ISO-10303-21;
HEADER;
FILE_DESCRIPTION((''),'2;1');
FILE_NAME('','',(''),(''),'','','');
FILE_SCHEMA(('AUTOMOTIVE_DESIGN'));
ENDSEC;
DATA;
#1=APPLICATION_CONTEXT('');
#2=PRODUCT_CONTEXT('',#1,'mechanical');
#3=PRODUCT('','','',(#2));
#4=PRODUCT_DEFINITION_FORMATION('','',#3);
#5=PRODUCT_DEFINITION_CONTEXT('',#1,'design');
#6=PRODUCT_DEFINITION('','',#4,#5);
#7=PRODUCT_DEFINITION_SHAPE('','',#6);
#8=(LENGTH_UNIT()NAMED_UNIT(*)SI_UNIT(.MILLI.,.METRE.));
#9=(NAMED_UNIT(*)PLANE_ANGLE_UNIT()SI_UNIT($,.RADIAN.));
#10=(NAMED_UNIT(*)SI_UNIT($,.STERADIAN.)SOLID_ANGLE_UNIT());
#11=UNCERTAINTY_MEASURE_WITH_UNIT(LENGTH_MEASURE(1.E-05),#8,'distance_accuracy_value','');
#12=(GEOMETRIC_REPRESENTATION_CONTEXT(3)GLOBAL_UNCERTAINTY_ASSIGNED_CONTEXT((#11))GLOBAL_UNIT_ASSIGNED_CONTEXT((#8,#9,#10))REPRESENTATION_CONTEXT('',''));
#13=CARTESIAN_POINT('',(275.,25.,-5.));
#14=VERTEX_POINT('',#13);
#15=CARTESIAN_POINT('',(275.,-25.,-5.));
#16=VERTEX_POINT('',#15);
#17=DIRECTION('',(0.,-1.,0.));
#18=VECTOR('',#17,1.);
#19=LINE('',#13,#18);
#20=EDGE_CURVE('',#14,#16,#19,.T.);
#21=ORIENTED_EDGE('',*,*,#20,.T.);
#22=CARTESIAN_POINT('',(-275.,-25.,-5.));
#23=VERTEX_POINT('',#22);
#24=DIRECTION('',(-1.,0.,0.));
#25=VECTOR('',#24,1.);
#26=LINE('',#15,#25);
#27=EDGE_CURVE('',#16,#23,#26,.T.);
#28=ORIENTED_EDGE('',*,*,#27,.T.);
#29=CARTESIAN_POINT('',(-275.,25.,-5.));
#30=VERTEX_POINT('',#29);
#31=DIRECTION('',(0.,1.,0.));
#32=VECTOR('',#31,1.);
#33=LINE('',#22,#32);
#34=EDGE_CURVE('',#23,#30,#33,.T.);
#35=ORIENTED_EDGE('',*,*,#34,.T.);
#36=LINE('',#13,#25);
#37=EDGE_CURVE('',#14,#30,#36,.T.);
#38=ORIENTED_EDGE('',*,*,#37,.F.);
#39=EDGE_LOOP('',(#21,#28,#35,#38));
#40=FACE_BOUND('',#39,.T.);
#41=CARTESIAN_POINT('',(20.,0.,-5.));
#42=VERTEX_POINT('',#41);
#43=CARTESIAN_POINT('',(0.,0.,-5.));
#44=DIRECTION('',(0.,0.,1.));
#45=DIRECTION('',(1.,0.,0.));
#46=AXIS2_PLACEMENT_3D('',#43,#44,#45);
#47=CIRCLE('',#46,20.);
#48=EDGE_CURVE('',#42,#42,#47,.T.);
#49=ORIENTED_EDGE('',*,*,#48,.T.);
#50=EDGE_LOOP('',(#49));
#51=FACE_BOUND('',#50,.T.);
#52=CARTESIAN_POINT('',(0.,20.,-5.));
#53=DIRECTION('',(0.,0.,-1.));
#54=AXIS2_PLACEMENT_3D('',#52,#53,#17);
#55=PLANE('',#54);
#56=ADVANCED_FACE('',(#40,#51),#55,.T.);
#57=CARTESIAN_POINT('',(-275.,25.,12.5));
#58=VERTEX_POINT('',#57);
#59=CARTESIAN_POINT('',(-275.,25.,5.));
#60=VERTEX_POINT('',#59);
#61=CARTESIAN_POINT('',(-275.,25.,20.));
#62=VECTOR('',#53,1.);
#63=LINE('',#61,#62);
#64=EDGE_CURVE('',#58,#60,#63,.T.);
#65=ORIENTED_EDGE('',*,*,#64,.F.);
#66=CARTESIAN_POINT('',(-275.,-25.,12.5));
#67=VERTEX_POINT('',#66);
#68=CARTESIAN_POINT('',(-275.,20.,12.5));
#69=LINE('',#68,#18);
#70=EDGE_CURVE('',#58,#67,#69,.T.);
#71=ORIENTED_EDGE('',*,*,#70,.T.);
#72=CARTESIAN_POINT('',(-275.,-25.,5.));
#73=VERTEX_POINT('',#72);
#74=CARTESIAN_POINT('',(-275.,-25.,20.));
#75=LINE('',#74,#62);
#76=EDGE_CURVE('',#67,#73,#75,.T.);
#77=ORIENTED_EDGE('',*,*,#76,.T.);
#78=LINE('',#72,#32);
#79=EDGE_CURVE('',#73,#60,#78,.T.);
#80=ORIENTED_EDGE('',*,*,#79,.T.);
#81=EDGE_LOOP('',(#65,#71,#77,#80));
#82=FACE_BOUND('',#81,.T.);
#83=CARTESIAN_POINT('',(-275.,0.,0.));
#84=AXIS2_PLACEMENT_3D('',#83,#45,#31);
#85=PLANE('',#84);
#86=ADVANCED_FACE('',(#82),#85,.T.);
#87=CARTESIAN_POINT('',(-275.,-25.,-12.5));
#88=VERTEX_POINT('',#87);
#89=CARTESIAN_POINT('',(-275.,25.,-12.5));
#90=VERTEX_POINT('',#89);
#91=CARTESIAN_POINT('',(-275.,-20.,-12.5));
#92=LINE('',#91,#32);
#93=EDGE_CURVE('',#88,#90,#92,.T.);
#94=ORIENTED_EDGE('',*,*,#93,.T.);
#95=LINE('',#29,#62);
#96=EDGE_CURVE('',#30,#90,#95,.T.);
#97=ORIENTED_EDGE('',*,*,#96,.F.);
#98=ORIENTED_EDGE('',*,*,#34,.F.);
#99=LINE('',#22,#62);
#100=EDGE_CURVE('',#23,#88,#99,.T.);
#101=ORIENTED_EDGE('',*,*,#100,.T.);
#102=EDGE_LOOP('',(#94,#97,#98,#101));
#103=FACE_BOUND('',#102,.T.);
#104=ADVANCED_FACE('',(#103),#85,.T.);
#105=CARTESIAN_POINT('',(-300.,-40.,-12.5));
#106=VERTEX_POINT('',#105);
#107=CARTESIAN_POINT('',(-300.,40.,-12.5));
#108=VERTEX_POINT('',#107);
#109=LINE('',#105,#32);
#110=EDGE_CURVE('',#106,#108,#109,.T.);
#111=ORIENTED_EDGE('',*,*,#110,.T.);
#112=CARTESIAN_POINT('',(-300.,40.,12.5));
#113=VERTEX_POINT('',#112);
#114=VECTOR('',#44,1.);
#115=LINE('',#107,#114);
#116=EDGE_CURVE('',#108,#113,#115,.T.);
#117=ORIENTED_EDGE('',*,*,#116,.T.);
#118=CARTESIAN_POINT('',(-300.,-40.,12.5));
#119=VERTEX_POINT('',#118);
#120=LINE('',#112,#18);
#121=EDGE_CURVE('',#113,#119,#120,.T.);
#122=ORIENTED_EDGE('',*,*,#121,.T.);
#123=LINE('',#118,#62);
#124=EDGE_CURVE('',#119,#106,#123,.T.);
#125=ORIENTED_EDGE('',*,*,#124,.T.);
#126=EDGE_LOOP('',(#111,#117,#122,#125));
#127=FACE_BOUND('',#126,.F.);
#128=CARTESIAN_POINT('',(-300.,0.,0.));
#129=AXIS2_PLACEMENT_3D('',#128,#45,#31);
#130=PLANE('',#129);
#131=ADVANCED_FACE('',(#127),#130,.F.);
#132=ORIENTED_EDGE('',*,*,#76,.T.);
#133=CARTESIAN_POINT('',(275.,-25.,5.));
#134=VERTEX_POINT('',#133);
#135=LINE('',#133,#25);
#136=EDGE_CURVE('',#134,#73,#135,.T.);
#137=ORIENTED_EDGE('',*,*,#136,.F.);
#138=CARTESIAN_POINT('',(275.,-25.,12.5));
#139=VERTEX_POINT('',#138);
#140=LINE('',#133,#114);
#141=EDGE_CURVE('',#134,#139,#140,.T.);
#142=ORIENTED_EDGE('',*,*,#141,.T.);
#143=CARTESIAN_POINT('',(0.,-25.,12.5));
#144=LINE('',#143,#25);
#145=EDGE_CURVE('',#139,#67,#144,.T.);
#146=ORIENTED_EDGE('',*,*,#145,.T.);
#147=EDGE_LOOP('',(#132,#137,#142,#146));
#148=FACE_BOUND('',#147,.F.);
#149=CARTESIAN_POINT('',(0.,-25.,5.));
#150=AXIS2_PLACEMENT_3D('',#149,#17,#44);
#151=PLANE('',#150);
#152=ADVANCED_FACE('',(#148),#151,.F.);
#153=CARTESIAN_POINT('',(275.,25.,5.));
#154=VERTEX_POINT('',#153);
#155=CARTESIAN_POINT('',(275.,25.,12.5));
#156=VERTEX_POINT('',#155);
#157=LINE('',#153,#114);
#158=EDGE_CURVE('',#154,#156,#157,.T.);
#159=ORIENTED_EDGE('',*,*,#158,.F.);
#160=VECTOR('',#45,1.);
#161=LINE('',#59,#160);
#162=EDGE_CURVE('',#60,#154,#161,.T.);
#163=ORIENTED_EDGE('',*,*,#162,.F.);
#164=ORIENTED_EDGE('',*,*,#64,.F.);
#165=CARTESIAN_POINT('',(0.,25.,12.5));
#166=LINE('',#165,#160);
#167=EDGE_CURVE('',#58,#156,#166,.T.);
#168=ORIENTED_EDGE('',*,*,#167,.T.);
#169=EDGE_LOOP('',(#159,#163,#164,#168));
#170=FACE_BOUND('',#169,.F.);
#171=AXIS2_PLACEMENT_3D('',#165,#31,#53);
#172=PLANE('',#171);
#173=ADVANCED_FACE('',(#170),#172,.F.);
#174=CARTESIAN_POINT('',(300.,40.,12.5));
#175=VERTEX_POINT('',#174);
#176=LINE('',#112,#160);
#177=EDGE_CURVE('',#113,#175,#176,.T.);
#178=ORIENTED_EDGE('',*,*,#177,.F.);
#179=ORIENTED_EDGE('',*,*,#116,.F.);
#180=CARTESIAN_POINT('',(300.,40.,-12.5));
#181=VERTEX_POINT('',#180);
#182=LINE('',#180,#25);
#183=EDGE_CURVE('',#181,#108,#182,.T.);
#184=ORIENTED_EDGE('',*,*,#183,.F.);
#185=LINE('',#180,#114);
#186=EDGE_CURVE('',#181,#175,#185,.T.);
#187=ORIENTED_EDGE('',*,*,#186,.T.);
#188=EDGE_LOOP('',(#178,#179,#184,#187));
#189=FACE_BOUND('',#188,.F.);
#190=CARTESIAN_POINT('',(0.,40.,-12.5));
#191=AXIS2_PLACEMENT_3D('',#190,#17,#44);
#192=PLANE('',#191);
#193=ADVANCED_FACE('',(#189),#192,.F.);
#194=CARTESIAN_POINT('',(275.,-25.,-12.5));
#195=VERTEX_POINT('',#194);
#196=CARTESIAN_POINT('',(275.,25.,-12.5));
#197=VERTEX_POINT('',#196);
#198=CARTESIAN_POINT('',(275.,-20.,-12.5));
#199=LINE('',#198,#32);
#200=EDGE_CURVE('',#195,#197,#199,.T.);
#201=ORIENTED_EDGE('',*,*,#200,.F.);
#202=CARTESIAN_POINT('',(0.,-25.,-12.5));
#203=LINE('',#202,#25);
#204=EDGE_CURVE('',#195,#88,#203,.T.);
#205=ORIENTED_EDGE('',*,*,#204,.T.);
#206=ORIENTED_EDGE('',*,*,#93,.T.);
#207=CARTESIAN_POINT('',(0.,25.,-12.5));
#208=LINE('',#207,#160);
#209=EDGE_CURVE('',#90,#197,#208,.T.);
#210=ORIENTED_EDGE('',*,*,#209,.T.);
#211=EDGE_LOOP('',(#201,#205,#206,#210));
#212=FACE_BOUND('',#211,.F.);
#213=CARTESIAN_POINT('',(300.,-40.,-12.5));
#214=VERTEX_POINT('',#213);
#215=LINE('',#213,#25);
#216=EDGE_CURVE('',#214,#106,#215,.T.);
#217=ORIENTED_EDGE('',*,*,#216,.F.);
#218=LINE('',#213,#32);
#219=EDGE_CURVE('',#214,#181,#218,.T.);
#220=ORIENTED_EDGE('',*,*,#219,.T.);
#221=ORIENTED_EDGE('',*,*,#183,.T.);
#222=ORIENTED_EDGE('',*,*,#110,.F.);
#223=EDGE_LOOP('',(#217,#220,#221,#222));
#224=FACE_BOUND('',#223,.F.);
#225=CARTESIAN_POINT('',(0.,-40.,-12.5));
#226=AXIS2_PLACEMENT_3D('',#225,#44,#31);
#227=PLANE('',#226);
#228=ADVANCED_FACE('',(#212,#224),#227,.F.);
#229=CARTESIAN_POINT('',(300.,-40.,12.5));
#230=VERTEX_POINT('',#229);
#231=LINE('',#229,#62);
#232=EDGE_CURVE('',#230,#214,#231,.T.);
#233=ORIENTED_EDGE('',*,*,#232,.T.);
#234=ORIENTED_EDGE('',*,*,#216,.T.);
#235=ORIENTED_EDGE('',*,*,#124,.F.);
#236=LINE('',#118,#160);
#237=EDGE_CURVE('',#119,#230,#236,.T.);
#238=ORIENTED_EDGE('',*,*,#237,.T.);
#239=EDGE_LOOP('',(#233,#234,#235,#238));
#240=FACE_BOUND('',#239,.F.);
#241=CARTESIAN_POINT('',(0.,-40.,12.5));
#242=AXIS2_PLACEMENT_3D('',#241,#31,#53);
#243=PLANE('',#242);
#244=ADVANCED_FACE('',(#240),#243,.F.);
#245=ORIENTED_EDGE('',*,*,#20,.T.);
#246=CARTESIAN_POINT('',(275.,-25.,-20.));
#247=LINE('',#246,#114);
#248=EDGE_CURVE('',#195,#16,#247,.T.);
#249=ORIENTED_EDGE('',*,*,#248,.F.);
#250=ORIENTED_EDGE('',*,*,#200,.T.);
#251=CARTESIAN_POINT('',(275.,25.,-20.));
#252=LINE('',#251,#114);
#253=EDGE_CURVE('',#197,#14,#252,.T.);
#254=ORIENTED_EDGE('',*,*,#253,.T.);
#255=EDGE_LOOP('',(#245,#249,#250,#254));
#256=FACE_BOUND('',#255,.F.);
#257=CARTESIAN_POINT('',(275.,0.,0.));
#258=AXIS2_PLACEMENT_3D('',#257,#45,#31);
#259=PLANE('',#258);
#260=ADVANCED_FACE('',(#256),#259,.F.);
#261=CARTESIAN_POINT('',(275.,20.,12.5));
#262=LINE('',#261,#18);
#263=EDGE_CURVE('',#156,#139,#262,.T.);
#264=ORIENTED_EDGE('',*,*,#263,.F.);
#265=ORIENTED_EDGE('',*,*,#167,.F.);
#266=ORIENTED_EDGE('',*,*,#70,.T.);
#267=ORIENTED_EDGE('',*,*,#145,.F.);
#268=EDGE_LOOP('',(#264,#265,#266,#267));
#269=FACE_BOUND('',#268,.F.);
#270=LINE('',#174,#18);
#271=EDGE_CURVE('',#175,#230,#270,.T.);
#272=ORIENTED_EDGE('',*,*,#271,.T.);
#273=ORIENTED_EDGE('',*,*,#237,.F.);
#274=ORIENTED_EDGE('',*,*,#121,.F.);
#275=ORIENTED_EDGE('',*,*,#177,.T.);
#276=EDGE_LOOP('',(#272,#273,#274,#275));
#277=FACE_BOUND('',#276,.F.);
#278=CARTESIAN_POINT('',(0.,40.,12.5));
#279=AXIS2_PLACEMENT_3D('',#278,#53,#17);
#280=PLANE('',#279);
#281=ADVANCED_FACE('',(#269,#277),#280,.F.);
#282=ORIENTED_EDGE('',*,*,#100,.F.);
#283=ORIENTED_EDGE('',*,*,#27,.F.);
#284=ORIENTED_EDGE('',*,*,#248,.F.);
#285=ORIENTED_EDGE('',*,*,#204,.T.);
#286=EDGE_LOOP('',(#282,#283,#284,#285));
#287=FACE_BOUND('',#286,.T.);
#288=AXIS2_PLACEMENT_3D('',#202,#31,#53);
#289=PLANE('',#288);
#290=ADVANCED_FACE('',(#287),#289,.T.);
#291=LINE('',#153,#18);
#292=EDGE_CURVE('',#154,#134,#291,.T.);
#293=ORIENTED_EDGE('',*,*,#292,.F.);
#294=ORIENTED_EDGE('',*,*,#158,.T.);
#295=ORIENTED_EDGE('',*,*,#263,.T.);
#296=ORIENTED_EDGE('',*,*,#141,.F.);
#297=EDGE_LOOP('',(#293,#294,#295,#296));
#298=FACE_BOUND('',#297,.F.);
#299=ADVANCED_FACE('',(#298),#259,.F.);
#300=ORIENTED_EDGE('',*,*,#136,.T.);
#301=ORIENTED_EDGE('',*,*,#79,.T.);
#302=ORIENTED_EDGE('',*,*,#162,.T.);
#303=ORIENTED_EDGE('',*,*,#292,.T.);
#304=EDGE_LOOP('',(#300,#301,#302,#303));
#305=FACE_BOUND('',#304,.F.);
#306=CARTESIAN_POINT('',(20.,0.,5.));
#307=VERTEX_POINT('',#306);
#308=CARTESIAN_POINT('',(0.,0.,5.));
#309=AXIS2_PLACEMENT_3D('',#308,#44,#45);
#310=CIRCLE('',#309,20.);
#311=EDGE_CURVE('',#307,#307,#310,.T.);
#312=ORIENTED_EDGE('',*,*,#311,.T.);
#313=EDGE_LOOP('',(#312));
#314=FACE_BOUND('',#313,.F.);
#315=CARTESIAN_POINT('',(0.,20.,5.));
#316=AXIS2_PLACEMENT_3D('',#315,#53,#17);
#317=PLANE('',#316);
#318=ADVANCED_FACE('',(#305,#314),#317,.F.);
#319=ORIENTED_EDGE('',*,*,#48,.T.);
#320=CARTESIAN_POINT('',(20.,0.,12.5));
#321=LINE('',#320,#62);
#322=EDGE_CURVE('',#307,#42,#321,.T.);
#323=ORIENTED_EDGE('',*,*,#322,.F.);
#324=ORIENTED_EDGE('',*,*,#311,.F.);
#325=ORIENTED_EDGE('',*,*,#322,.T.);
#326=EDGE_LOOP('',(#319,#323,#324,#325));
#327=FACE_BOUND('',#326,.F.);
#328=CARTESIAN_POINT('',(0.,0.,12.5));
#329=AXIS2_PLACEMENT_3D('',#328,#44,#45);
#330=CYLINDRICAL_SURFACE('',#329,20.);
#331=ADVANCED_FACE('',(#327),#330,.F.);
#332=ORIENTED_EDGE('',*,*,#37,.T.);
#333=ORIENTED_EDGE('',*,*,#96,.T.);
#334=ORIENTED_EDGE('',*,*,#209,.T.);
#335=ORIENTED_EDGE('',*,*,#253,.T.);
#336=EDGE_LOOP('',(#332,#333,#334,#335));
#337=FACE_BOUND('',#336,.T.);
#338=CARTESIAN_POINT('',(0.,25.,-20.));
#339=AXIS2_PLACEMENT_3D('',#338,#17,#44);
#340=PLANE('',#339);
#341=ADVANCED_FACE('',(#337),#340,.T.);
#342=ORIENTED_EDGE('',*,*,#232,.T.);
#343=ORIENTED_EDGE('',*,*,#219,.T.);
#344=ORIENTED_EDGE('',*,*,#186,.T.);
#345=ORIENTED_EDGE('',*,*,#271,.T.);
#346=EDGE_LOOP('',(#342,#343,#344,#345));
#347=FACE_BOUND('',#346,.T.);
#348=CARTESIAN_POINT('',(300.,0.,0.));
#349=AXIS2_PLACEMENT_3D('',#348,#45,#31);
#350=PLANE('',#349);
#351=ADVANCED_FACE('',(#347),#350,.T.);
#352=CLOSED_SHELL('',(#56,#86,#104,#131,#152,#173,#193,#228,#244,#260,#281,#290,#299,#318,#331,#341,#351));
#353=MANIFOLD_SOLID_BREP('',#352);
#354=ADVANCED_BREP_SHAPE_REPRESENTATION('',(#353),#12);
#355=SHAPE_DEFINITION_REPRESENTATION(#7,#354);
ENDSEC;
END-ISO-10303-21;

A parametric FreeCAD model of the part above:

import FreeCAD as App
import Part
import Sketcher
from FreeCAD import Vector
Q = App.Units.Quantity

doc = App.newDocument("Part")
params = doc.addObject("Spreadsheet::Sheet", "Params")
for row, (alias, value) in enumerate([
    ("sketch1_width", "80 mm"),
    ("sketch1_height", "25 mm"),
    ("pad1_length", "600 mm"),
    ("sketch2_diameter", "40 mm"),
    ("sketch3_width", "50 mm"),
    ("sketch3_height", "15 mm"),
    ("pocket2_length", "550 mm"),
], start=1):
    params.set(f"A{row}", alias)
    params.set(f"B{row}", "=" + value)
    params.setAlias(f"B{row}", alias)

body = doc.addObject("PartDesign::Body", "Body")

# Sketch on YZ plane
sketch1 = doc.addObject("Sketcher::SketchObject", "Sketch")
body.addObject(sketch1)
sketch1.AttachmentSupport = (doc.YZ_Plane, [""])
sketch1.MapMode = "FlatFace"
sketch1.addGeometry([
    Part.LineSegment(Vector(40, -12, 0), Vector(40, 12, 0)),
    Part.LineSegment(Vector(40, 12, 0), Vector(-40, 12, 0)),
    Part.LineSegment(Vector(-40, 12, 0), Vector(-40, -12, 0)),
    Part.LineSegment(Vector(-40, -12, 0), Vector(40, -12, 0)),
], False)
sketch1.addConstraint([
    Sketcher.Constraint("Coincident", 0, 2, 1, 1),
    Sketcher.Constraint("Coincident", 1, 2, 2, 1),
    Sketcher.Constraint("Coincident", 2, 2, 3, 1),
    Sketcher.Constraint("Coincident", 3, 2, 0, 1),
    Sketcher.Constraint("Vertical", 0),
    Sketcher.Constraint("Horizontal", 1),
    Sketcher.Constraint("Vertical", 2),
    Sketcher.Constraint("Horizontal", 3),
    Sketcher.Constraint("Symmetric", 0, 2, 2, 2, -1, 1),
    Sketcher.Constraint("DistanceX", 1, 2, 1, 1, Q("80 mm")),
    Sketcher.Constraint("DistanceY", 0, 1, 0, 2, Q("25 mm")),
])
sketch1.setExpression("Constraints[9]", "Params.sketch1_width")
sketch1.setExpression("Constraints[10]", "Params.sketch1_height")
pad1 = doc.addObject("PartDesign::Pad", "Pad")
body.addObject(pad1)
pad1.Profile = sketch1
pad1.setExpression("Length", "Params.pad1_length")
pad1.Midplane = True

# Sketch on XY plane
sketch2 = doc.addObject("Sketcher::SketchObject", "Sketch001")
body.addObject(sketch2)
sketch2.AttachmentSupport = (doc.XY_Plane, [""])
sketch2.MapMode = "FlatFace"
sketch2.AttachmentOffset = App.Placement(Vector(0, 0, 12.5), App.Rotation())
sketch2.addGeometry(Part.Circle(Vector(0, 0, 0), Vector(0, 0, 1), 20), False)
sketch2.addConstraint([
    Sketcher.Constraint("Coincident", 0, 3, -1, 1),
    Sketcher.Constraint("Diameter", 0, Q("40 mm")),
])
sketch2.setExpression("Constraints[1]", "Params.sketch2_diameter")
pocket1 = doc.addObject("PartDesign::Pocket", "Pocket")
body.addObject(pocket1)
pocket1.Profile = sketch2
pocket1.Type = "UpToFirst"

# Sketch on YZ plane
sketch3 = doc.addObject("Sketcher::SketchObject", "Sketch002")
body.addObject(sketch3)
sketch3.AttachmentSupport = (doc.YZ_Plane, [""])
sketch3.MapMode = "FlatFace"
sketch3.addGeometry([
    Part.LineSegment(Vector(-25, -20, 0), Vector(25, -20, 0)),  # 0
    Part.LineSegment(Vector(25, -20, 0), Vector(25, -5, 0)),  # 1
    Part.LineSegment(Vector(25, -5, 0), Vector(-25, -5, 0)),  # 2
    Part.LineSegment(Vector(-25, -5, 0), Vector(-25, -20, 0)),  # 3
    Part.LineSegment(Vector(-25, 5, 0), Vector(25, 5, 0)),  # 4
    Part.LineSegment(Vector(25, 5, 0), Vector(25, 20, 0)),  # 5
    Part.LineSegment(Vector(25, 20, 0), Vector(-25, 20, 0)),  # 6
    Part.LineSegment(Vector(-25, 20, 0), Vector(-25, 5, 0)),  # 7
], False)
sketch3.addConstraint([
    Sketcher.Constraint("Coincident", 0, 2, 1, 1),
    Sketcher.Constraint("Coincident", 1, 2, 2, 1),
    Sketcher.Constraint("Coincident", 2, 2, 3, 1),
    Sketcher.Constraint("Coincident", 3, 2, 0, 1),
    Sketcher.Constraint("Coincident", 4, 2, 5, 1),
    Sketcher.Constraint("Coincident", 5, 2, 6, 1),
    Sketcher.Constraint("Coincident", 6, 2, 7, 1),
    Sketcher.Constraint("Coincident", 7, 2, 4, 1),
    Sketcher.Constraint("Horizontal", 0),
    Sketcher.Constraint("Vertical", 1),
    Sketcher.Constraint("Horizontal", 2),
    Sketcher.Constraint("Vertical", 3),
    Sketcher.Constraint("Horizontal", 4),
    Sketcher.Constraint("Vertical", 5),
    Sketcher.Constraint("Horizontal", 6),
    Sketcher.Constraint("Vertical", 7),
    Sketcher.Constraint("Symmetric", 2, 2, 4, 2, -1, 1),
    Sketcher.Constraint("Symmetric", 0, 2, 6, 2, -1, 1),
    Sketcher.Constraint("Vertical", 1, 2, 4, 2),
    Sketcher.Constraint("DistanceX", 0, 1, 0, 2, Q("50 mm")),
    Sketcher.Constraint("DistanceY", 1, 1, 1, 2, Q("15 mm")),
    Sketcher.Constraint("DistanceY", 0, 2, -1, 1, Q("20 mm")),
])
sketch3.setExpression("Constraints[19]", "Params.sketch3_width")
sketch3.setExpression("Constraints[20]", "Params.sketch3_height")
pocket2 = doc.addObject("PartDesign::Pocket", "Pocket001")
body.addObject(pocket2)
pocket2.Profile = sketch3
pocket2.setExpression("Length", "Params.pocket2_length")
pocket2.Midplane = True

doc.recompute()
